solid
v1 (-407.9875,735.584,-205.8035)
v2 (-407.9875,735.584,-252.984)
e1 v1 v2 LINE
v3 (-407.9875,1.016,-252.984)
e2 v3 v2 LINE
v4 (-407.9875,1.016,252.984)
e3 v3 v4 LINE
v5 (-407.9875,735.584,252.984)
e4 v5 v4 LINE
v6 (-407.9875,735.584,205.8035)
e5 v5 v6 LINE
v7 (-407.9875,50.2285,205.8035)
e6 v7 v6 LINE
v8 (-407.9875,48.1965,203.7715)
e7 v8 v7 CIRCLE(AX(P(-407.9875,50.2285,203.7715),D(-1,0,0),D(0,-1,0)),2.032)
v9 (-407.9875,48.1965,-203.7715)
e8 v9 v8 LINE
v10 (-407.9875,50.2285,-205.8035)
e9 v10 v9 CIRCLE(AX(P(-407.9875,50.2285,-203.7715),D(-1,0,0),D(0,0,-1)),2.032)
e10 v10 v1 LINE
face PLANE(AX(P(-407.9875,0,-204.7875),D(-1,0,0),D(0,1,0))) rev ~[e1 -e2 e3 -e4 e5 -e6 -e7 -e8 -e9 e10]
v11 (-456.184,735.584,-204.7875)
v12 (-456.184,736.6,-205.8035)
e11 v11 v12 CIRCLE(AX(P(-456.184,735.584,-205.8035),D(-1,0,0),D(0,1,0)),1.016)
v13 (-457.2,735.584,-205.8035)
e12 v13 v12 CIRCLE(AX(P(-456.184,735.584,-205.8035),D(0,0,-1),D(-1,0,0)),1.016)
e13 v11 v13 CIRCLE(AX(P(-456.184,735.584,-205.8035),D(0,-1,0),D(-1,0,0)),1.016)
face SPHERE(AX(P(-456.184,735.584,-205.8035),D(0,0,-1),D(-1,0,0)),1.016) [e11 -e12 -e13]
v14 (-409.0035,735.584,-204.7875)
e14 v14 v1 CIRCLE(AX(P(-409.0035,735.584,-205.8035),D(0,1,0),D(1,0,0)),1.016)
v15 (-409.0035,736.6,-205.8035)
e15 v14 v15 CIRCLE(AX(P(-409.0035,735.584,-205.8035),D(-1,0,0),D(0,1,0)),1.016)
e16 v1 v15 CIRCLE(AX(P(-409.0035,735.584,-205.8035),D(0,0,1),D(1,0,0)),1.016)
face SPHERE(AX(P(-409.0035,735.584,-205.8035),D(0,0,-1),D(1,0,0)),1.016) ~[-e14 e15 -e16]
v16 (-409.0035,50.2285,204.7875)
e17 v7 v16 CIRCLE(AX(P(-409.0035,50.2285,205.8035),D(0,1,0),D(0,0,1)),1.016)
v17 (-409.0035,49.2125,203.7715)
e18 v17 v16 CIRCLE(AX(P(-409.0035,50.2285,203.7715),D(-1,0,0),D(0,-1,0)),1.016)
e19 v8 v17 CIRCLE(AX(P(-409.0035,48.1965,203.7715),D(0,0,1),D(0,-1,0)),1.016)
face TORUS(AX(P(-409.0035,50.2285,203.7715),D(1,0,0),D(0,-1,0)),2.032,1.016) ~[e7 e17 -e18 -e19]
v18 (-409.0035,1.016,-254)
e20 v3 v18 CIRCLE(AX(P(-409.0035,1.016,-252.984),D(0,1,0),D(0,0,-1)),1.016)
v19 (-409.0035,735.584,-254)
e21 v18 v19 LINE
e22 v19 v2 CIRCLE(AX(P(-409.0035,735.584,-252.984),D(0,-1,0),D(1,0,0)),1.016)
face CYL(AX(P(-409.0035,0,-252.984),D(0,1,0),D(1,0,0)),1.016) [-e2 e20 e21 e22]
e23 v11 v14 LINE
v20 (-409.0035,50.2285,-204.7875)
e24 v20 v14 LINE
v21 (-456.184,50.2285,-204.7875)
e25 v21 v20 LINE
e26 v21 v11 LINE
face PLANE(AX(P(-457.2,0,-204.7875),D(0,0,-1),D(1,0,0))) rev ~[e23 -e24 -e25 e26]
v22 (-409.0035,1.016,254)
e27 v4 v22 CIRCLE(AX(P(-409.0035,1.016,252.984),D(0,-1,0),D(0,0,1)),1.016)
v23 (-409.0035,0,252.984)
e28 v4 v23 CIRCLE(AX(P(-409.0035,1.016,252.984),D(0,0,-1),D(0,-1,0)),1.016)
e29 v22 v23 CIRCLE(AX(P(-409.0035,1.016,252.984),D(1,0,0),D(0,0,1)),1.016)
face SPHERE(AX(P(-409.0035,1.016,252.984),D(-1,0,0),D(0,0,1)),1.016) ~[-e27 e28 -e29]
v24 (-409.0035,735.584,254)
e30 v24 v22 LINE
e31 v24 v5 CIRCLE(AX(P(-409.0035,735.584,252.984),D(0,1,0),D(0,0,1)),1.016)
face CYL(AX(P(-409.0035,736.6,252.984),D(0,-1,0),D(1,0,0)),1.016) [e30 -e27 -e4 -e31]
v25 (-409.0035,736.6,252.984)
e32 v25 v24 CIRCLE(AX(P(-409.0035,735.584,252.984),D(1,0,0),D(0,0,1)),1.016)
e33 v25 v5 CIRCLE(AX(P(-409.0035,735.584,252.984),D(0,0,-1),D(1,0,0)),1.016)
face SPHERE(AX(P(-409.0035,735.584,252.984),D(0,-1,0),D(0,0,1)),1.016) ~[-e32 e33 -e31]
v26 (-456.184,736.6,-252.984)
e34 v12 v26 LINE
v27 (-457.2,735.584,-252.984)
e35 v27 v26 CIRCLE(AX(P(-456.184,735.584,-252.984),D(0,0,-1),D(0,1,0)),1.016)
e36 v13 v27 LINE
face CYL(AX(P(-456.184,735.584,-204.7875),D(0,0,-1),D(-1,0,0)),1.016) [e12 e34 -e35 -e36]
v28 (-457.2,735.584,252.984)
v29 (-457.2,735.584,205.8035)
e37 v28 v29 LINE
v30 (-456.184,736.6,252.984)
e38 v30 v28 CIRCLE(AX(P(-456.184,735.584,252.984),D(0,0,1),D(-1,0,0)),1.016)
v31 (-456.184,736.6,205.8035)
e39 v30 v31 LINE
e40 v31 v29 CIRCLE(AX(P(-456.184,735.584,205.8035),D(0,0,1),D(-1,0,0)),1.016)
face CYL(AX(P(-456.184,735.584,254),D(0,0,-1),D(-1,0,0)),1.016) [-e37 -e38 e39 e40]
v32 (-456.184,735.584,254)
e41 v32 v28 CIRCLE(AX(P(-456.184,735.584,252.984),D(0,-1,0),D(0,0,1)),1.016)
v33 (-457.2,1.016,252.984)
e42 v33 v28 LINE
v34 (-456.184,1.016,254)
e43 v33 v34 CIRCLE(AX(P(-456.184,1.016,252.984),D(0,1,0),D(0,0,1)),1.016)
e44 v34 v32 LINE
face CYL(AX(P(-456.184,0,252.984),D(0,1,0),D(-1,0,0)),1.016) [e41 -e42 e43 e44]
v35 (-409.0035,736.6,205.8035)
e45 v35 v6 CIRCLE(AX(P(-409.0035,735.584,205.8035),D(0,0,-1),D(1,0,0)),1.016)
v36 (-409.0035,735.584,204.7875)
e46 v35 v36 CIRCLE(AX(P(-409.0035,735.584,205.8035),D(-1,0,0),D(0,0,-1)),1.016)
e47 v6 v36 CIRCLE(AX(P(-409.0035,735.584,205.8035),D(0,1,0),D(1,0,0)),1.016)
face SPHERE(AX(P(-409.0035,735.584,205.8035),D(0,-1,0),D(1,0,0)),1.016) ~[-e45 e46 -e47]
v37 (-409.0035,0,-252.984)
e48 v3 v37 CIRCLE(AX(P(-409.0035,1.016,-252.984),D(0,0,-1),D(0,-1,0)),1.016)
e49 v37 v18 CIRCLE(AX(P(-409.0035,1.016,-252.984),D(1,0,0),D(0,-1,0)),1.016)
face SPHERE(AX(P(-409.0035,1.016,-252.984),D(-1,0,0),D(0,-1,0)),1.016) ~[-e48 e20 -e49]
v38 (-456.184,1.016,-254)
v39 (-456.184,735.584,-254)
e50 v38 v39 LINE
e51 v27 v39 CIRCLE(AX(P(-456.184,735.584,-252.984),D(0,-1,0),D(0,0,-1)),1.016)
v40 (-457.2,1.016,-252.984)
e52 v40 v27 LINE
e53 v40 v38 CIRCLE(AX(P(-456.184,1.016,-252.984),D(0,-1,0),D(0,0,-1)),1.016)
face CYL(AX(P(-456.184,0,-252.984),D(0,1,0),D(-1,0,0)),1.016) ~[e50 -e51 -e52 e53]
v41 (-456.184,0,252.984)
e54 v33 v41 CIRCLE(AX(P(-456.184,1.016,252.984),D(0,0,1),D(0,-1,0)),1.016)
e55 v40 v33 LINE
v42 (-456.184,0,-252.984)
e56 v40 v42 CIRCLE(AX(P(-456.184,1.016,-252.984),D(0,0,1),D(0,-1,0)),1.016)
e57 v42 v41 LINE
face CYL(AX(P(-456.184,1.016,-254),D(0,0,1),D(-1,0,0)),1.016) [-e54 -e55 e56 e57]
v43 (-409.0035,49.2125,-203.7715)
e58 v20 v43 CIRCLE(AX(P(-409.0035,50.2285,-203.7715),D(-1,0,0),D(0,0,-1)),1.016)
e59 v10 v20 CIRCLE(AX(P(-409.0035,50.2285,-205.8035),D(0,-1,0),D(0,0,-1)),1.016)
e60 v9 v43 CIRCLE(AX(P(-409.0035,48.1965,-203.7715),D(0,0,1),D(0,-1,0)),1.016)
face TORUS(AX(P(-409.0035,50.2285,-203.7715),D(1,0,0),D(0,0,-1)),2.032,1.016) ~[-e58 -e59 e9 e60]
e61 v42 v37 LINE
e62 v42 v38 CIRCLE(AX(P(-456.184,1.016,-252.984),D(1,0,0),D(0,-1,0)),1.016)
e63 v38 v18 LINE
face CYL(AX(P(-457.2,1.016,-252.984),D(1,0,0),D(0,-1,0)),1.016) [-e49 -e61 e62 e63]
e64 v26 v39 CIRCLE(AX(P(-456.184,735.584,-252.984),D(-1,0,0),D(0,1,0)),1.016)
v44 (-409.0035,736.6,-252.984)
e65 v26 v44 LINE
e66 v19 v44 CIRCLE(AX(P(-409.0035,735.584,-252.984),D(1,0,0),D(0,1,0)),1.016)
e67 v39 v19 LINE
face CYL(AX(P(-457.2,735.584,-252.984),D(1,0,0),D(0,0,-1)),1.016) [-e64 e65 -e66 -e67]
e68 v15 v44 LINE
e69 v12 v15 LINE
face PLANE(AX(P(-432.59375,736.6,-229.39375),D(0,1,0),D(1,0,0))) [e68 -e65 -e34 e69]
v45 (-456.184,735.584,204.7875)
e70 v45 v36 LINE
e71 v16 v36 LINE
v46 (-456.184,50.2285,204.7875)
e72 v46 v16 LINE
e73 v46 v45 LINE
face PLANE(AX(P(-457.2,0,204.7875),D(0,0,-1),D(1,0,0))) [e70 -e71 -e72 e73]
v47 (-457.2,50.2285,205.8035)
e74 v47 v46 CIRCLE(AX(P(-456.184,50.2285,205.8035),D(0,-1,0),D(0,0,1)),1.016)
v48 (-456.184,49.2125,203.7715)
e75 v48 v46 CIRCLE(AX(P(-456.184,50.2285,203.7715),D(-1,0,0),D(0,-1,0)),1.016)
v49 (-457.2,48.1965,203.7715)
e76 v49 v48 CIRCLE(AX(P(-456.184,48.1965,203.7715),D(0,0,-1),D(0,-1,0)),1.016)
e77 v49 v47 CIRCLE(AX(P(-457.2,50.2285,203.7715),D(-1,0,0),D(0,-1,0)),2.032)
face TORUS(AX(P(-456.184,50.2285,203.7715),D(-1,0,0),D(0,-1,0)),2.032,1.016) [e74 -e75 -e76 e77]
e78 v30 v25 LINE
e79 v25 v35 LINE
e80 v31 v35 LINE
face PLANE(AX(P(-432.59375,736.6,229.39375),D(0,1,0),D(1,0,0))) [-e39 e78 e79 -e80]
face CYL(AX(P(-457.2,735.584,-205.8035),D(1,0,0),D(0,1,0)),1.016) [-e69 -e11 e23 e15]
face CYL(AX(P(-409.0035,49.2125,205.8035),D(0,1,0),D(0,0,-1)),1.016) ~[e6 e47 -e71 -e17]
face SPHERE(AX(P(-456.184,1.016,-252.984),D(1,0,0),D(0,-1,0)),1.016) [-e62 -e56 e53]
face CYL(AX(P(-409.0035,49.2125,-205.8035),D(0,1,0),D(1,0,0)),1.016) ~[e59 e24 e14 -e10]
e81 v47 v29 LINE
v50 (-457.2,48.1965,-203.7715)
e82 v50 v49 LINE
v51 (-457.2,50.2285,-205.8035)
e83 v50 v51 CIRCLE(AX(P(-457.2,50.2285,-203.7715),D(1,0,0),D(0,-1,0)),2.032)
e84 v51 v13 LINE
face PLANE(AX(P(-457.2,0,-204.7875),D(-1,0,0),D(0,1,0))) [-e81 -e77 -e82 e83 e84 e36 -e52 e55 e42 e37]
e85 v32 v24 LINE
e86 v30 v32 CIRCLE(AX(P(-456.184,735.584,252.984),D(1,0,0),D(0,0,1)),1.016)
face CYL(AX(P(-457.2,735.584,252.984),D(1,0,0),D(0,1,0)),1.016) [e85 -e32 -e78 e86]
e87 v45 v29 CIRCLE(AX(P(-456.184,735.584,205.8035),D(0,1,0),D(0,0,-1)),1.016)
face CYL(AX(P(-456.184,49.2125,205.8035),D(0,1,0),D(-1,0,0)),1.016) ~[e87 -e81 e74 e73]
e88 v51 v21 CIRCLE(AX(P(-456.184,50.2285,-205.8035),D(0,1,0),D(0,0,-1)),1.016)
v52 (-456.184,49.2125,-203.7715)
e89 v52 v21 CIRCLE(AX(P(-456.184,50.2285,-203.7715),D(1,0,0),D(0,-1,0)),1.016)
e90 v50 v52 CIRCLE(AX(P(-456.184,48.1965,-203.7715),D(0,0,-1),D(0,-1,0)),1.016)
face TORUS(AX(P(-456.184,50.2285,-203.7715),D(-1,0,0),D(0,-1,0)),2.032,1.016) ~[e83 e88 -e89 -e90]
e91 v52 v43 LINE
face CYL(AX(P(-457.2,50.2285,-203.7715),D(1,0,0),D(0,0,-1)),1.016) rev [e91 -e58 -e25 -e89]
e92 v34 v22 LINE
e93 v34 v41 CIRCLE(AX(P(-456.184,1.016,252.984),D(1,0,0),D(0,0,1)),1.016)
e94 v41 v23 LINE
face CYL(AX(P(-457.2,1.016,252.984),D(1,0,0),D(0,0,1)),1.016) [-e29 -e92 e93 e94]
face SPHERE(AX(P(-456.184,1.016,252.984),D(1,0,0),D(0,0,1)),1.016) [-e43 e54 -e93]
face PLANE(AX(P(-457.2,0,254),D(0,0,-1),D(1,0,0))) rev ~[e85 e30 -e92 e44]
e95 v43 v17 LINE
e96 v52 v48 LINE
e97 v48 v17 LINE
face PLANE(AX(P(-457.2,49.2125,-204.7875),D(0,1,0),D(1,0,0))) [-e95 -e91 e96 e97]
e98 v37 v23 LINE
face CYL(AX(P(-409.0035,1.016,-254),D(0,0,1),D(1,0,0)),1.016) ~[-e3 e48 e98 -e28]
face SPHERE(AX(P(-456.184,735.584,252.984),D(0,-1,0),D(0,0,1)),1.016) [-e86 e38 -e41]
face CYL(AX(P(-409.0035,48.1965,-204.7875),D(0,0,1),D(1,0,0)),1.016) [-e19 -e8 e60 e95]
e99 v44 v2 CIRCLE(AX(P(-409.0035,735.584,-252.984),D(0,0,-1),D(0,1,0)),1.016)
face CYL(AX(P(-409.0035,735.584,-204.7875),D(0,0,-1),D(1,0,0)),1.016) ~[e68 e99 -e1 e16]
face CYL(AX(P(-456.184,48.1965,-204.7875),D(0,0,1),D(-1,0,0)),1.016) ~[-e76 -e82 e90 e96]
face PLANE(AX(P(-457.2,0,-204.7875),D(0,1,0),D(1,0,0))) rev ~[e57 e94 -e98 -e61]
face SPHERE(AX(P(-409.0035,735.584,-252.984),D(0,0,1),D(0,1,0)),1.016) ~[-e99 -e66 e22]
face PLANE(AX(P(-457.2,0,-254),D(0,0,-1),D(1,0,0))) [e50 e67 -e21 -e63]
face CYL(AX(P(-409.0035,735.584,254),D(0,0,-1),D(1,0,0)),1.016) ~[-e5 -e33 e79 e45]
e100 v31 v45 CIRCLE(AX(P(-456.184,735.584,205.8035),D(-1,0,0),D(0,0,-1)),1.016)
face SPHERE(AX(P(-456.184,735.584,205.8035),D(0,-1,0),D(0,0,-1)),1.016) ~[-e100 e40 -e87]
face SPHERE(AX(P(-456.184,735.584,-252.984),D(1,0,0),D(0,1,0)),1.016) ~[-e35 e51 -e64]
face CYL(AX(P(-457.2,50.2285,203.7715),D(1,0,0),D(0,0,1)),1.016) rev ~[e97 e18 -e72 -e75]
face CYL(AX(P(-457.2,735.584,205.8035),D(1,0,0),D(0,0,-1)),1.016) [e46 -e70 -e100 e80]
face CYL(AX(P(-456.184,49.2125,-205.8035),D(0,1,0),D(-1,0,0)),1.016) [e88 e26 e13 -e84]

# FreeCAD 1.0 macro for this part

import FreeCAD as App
import Part
import Sketcher
Q = App.Units.Quantity


def add_polygon(sketch, points):
    """Adds a closed chain of lines whose ends are joined by coincident constraints."""
    first, n = sketch.GeometryCount, len(points)
    for a, b in zip(points, points[1:] + points[:1]):
        sketch.addGeometry(Part.LineSegment(App.Vector(*a, 0), App.Vector(*b, 0)), False)
    for i in range(n):
        sketch.addConstraint(Sketcher.Constraint("Coincident", first + i, 2, first + (i + 1) % n, 1))

doc = App.newDocument("Part")
body = doc.addObject("PartDesign::Body", "Body")

sketch1 = body.newObject("Sketcher::SketchObject", "Sketch")
sketch1.AttachmentSupport = (doc.getObject("XZ_Plane"), [""])
sketch1.MapMode = "FlatFace"
add_polygon(sketch1, [(-457, -254), (-457, -205), (-408, -205), (-408, -254)])
sketch1.addConstraint(Sketcher.Constraint("Vertical", 0))
sketch1.addConstraint(Sketcher.Constraint("Horizontal", 1))
sketch1.addConstraint(Sketcher.Constraint("Vertical", 2))
sketch1.addConstraint(Sketcher.Constraint("Horizontal", 3))
sketch1.addConstraint(Sketcher.Constraint("Equal", 3, 0))
sketch1.addConstraint(Sketcher.Constraint("DistanceX", 0, 2, -1, 1, Q("18 in")))
sketch1.addConstraint(Sketcher.Constraint("DistanceY", 2, 2, -1, 1, Q("10 in")))
sketch1.addConstraint(Sketcher.Constraint("DistanceX", 1, 1, 1, 2, Q("1.9375 in")))
pad1 = body.newObject("PartDesign::Pad", "Pad")
pad1.Profile = sketch1
pad1.Length = Q("29 in")
pad1.Reversed = True
body2 = doc.addObject("PartDesign::Body", "Body001")

sketch2 = body2.newObject("Sketcher::SketchObject", "Sketch001")
sketch2.AttachmentSupport = (doc.getObject("XZ_Plane001"), [""])
sketch2.MapMode = "FlatFace"
add_polygon(sketch2, [(-457, 205), (-457, 254), (-408, 254), (-408, 205)])
sketch2.addConstraint(Sketcher.Constraint("Vertical", 0))
sketch2.addConstraint(Sketcher.Constraint("Horizontal", 1))
sketch2.addConstraint(Sketcher.Constraint("Vertical", 2))
sketch2.addConstraint(Sketcher.Constraint("Horizontal", 3))
sketch2.addConstraint(Sketcher.Constraint("Equal", 3, 0))
sketch2.addConstraint(Sketcher.Constraint("DistanceX", 0, 2, -1, 1, Q("18 in")))
sketch2.addConstraint(Sketcher.Constraint("DistanceY", -1, 1, 0, 2, Q("10 in")))
sketch2.addConstraint(Sketcher.Constraint("DistanceX", 1, 1, 1, 2, Q("1.9375 in")))
pad2 = body2.newObject("PartDesign::Pad", "Pad001")
pad2.Profile = sketch2
pad2.Length = Q("29 in")
pad2.Reversed = True
body.AllowCompound = True
doc.recompute()

boolean = body.newObject("PartDesign::Boolean", "Boolean")
boolean.Type = "Fuse"
boolean.addObjects([body2])

sketch3 = body.newObject("Sketcher::SketchObject", "Sketch002")
sketch3.AttachmentSupport = (doc.getObject("XY_Plane"), [""])
sketch3.MapMode = "FlatFace"
sketch3.AttachmentOffset = App.Placement(App.Vector(0, 0, -8.0625 * 25.4), App.Rotation())
add_polygon(sketch3, [(-457, 49), (-457, 0), (-408, 0), (-408, 49)])
sketch3.addConstraint(Sketcher.Constraint("Vertical", 0))
sketch3.addConstraint(Sketcher.Constraint("Horizontal", 1))
sketch3.addConstraint(Sketcher.Constraint("Vertical", 2))
sketch3.addConstraint(Sketcher.Constraint("Horizontal", 3))
sketch3.addConstraint(Sketcher.Constraint("PointOnObject", 0, 2, -1))
sketch3.addConstraint(Sketcher.Constraint("Equal", 3, 0))
sketch3.addConstraint(Sketcher.Constraint("DistanceX", 0, 2, -1, 1, Q("18 in")))
sketch3.addConstraint(Sketcher.Constraint("DistanceX", 1, 1, 1, 2, Q("1.9375 in")))
pad3 = body.newObject("PartDesign::Pad", "Pad002")
pad3.Profile = sketch3
pad3.Length = Q("18.0625 in")
doc.recompute()

fillet = body.newObject("PartDesign::Fillet", "Fillet")
fillet.Base = (pad3, ["Edge1"])
fillet.UseAllEdges = True
fillet.Radius = Q("0.04 in")

doc.recompute()
